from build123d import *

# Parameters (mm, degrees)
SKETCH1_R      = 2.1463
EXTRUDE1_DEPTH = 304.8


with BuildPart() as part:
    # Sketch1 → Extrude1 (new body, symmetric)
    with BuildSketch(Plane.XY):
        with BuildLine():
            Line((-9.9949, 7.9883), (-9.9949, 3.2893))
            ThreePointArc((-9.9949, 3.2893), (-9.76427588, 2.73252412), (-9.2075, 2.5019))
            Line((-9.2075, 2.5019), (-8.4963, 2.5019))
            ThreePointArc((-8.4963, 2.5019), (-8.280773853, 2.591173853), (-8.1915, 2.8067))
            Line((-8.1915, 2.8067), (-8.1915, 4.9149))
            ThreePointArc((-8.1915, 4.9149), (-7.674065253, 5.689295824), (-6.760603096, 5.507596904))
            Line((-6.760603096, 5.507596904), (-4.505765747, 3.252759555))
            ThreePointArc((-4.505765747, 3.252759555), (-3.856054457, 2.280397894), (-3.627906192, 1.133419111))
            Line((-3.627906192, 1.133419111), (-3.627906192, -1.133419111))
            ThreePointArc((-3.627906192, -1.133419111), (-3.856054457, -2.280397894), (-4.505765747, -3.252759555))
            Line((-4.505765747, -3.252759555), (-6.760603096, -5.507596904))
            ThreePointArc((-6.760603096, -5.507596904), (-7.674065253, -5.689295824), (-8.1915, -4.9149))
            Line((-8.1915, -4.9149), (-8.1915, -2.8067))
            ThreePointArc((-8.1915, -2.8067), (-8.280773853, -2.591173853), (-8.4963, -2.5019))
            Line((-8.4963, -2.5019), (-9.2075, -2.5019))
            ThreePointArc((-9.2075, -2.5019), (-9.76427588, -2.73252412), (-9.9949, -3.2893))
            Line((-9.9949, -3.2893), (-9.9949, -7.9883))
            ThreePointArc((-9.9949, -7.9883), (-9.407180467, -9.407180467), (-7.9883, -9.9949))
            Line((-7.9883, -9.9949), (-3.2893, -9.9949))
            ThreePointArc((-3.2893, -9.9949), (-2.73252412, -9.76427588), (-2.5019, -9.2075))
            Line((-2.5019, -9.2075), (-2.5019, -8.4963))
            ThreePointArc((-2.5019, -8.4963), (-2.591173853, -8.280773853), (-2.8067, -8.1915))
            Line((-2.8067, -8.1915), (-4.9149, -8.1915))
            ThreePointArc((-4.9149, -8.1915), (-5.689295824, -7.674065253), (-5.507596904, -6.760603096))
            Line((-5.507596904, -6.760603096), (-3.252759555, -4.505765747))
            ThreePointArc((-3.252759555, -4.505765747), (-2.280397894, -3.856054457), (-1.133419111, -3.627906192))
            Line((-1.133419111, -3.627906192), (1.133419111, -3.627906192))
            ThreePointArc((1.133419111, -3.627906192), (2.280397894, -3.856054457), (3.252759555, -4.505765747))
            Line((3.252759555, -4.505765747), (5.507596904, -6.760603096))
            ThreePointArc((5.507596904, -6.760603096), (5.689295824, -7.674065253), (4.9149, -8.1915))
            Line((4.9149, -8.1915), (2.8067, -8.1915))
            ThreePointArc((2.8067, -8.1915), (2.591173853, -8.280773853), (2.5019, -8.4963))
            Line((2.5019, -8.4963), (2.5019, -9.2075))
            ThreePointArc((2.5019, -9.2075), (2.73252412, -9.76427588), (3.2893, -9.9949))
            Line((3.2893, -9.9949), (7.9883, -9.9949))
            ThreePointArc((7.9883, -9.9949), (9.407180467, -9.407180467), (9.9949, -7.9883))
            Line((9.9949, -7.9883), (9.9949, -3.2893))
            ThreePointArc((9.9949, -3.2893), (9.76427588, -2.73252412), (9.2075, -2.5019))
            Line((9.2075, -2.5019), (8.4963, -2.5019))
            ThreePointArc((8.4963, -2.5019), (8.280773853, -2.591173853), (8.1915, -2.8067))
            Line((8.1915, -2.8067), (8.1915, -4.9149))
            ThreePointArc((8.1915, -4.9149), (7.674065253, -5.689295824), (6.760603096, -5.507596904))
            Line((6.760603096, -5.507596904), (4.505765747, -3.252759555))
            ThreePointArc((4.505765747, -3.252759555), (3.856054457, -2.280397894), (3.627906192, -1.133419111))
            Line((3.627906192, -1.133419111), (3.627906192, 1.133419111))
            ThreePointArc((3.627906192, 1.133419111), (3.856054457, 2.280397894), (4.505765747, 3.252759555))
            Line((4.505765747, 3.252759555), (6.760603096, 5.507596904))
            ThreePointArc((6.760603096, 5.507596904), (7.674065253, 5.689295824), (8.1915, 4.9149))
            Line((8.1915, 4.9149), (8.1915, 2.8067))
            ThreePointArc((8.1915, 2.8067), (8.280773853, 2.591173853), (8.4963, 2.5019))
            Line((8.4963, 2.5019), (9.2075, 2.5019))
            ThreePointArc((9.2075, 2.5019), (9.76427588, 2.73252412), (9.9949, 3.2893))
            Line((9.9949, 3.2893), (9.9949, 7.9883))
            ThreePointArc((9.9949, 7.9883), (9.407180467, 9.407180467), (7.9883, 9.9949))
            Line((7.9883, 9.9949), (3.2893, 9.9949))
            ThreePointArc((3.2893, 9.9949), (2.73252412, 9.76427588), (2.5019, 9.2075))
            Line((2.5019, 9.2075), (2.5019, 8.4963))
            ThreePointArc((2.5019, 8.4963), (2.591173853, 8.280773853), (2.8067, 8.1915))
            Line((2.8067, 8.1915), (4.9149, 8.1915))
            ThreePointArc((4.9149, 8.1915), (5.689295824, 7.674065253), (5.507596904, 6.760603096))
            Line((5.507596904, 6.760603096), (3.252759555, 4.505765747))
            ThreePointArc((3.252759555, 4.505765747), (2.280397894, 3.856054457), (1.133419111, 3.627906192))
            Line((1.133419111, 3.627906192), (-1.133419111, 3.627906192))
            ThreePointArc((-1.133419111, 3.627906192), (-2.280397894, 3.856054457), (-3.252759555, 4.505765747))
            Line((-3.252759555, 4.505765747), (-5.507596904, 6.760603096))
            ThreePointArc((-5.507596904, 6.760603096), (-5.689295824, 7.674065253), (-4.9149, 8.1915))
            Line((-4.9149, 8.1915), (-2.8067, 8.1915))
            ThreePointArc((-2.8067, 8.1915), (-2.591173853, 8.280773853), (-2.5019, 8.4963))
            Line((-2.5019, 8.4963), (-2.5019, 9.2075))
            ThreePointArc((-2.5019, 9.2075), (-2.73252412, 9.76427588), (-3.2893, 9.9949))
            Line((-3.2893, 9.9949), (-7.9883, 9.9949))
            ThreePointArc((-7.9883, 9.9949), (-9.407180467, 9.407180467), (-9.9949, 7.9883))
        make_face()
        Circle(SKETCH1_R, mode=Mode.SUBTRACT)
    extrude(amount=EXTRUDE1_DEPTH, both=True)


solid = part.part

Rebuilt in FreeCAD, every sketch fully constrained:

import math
import FreeCAD as App
import Part
import Sketcher
from FreeCAD import Vector
Q = App.Units.Quantity

doc = App.newDocument("Part")
body = doc.addObject("PartDesign::Body", "Body")

# Sketch on XY plane
sketch1 = body.newObject("Sketcher::SketchObject", "Sketch")
sketch1.AttachmentSupport = (doc.getObject("XY_Plane"), [""])
sketch1.MapMode = "FlatFace"
sketch1.addGeometry([
    Part.LineSegment(Vector(-9.9949, 7.9883, 0), Vector(-9.9949, 3.2893, 0)),  # 0
    Part.ArcOfCircle(Part.Circle(Vector(-9.2075, 3.2893, 0), Vector(0, 0, 1), 0.7874), math.radians(180), math.radians(270)),  # 1
    Part.LineSegment(Vector(-9.2075, 2.5019, 0), Vector(-8.4963, 2.5019, 0)),  # 2
    Part.ArcOfCircle(Part.Circle(Vector(-8.4963, 2.8067, 0), Vector(0, 0, 1), 0.3048), math.radians(-90), math.radians(0)),  # 3
    Part.LineSegment(Vector(-8.1915, 2.8067, 0), Vector(-8.1915, 4.9149, 0)),  # 4
    Part.ArcOfCircle(Part.Circle(Vector(-7.3533, 4.9149, 0), Vector(0, 0, 1), 0.8382), math.radians(45), math.radians(180)),  # 5
    Part.LineSegment(Vector(-6.760603, 5.507597, 0), Vector(-4.505766, 3.25276, 0)),  # 6
    Part.ArcOfCircle(Part.Circle(Vector(-6.625106, 1.133419, 0), Vector(0, 0, 1), 2.9972), math.radians(0), math.radians(45)),  # 7
    Part.LineSegment(Vector(-3.627906, 1.133419, 0), Vector(-3.627906, -1.133419, 0)),  # 8
    Part.ArcOfCircle(Part.Circle(Vector(-6.625106, -1.133419, 0), Vector(0, 0, 1), 2.9972), math.radians(-45), math.radians(0)),  # 9
    Part.LineSegment(Vector(-4.505766, -3.25276, 0), Vector(-6.760603, -5.507597, 0)),  # 10
    Part.ArcOfCircle(Part.Circle(Vector(-7.3533, -4.9149, 0), Vector(0, 0, 1), 0.8382), math.radians(180), math.radians(315)),  # 11
    Part.LineSegment(Vector(-8.1915, -4.9149, 0), Vector(-8.1915, -2.8067, 0)),  # 12
    Part.ArcOfCircle(Part.Circle(Vector(-8.4963, -2.8067, 0), Vector(0, 0, 1), 0.3048), math.radians(0), math.radians(90)),  # 13
    Part.LineSegment(Vector(-8.4963, -2.5019, 0), Vector(-9.2075, -2.5019, 0)),  # 14
    Part.ArcOfCircle(Part.Circle(Vector(-9.2075, -3.2893, 0), Vector(0, 0, 1), 0.7874), math.radians(90), math.radians(180)),  # 15
    Part.LineSegment(Vector(-9.9949, -3.2893, 0), Vector(-9.9949, -7.9883, 0)),  # 16
    Part.ArcOfCircle(Part.Circle(Vector(-7.9883, -7.9883, 0), Vector(0, 0, 1), 2.0066), math.radians(180), math.radians(270)),  # 17
    Part.LineSegment(Vector(-7.9883, -9.9949, 0), Vector(-3.2893, -9.9949, 0)),  # 18
    Part.ArcOfCircle(Part.Circle(Vector(-3.2893, -9.2075, 0), Vector(0, 0, 1), 0.7874), math.radians(-90), math.radians(0)),  # 19
    Part.LineSegment(Vector(-2.5019, -9.2075, 0), Vector(-2.5019, -8.4963, 0)),  # 20
    Part.ArcOfCircle(Part.Circle(Vector(-2.8067, -8.4963, 0), Vector(0, 0, 1), 0.3048), math.radians(0), math.radians(90)),  # 21
    Part.LineSegment(Vector(-2.8067, -8.1915, 0), Vector(-4.9149, -8.1915, 0)),  # 22
    Part.ArcOfCircle(Part.Circle(Vector(-4.9149, -7.3533, 0), Vector(0, 0, 1), 0.8382), math.radians(135), math.radians(270)),  # 23
    Part.LineSegment(Vector(-5.507597, -6.760603, 0), Vector(-3.25276, -4.505766, 0)),  # 24
    Part.ArcOfCircle(Part.Circle(Vector(-1.133419, -6.625106, 0), Vector(0, 0, 1), 2.9972), math.radians(90), math.radians(135)),  # 25
    Part.LineSegment(Vector(-1.133419, -3.627906, 0), Vector(1.133419, -3.627906, 0)),  # 26
    Part.ArcOfCircle(Part.Circle(Vector(1.133419, -6.625106, 0), Vector(0, 0, 1), 2.9972), math.radians(45), math.radians(90)),  # 27
    Part.LineSegment(Vector(3.25276, -4.505766, 0), Vector(5.507597, -6.760603, 0)),  # 28
    Part.ArcOfCircle(Part.Circle(Vector(4.9149, -7.3533, 0), Vector(0, 0, 1), 0.8382), math.radians(-90), math.radians(45)),  # 29
    Part.LineSegment(Vector(4.9149, -8.1915, 0), Vector(2.8067, -8.1915, 0)),  # 30
    Part.ArcOfCircle(Part.Circle(Vector(2.8067, -8.4963, 0), Vector(0, 0, 1), 0.3048), math.radians(90), math.radians(180)),  # 31
    Part.LineSegment(Vector(2.5019, -8.4963, 0), Vector(2.5019, -9.2075, 0)),  # 32
    Part.ArcOfCircle(Part.Circle(Vector(3.2893, -9.2075, 0), Vector(0, 0, 1), 0.7874), math.radians(180), math.radians(270)),  # 33
    Part.LineSegment(Vector(3.2893, -9.9949, 0), Vector(7.9883, -9.9949, 0)),  # 34
    Part.ArcOfCircle(Part.Circle(Vector(7.9883, -7.9883, 0), Vector(0, 0, 1), 2.0066), math.radians(-90), math.radians(0)),  # 35
    Part.LineSegment(Vector(9.9949, -7.9883, 0), Vector(9.9949, -3.2893, 0)),  # 36
    Part.ArcOfCircle(Part.Circle(Vector(9.2075, -3.2893, 0), Vector(0, 0, 1), 0.7874), math.radians(0), math.radians(90)),  # 37
    Part.LineSegment(Vector(9.2075, -2.5019, 0), Vector(8.4963, -2.5019, 0)),  # 38
    Part.ArcOfCircle(Part.Circle(Vector(8.4963, -2.8067, 0), Vector(0, 0, 1), 0.3048), math.radians(90), math.radians(180)),  # 39
    Part.LineSegment(Vector(8.1915, -2.8067, 0), Vector(8.1915, -4.9149, 0)),  # 40
    Part.ArcOfCircle(Part.Circle(Vector(7.3533, -4.9149, 0), Vector(0, 0, 1), 0.8382), math.radians(-135), math.radians(0)),  # 41
    Part.LineSegment(Vector(6.760603, -5.507597, 0), Vector(4.505766, -3.25276, 0)),  # 42
    Part.ArcOfCircle(Part.Circle(Vector(6.625106, -1.133419, 0), Vector(0, 0, 1), 2.9972), math.radians(180), math.radians(225)),  # 43
    Part.LineSegment(Vector(3.627906, -1.133419, 0), Vector(3.627906, 1.133419, 0)),  # 44
    Part.ArcOfCircle(Part.Circle(Vector(6.625106, 1.133419, 0), Vector(0, 0, 1), 2.9972), math.radians(135), math.radians(180)),  # 45
    Part.LineSegment(Vector(4.505766, 3.25276, 0), Vector(6.760603, 5.507597, 0)),  # 46
    Part.ArcOfCircle(Part.Circle(Vector(7.3533, 4.9149, 0), Vector(0, 0, 1), 0.8382), math.radians(0), math.radians(135)),  # 47
    Part.LineSegment(Vector(8.1915, 4.9149, 0), Vector(8.1915, 2.8067, 0)),  # 48
    Part.ArcOfCircle(Part.Circle(Vector(8.4963, 2.8067, 0), Vector(0, 0, 1), 0.3048), math.radians(180), math.radians(270)),  # 49
    Part.LineSegment(Vector(8.4963, 2.5019, 0), Vector(9.2075, 2.5019, 0)),  # 50
    Part.ArcOfCircle(Part.Circle(Vector(9.2075, 3.2893, 0), Vector(0, 0, 1), 0.7874), math.radians(-90), math.radians(0)),  # 51
    Part.LineSegment(Vector(9.9949, 3.2893, 0), Vector(9.9949, 7.9883, 0)),  # 52
    Part.ArcOfCircle(Part.Circle(Vector(7.9883, 7.9883, 0), Vector(0, 0, 1), 2.0066), math.radians(0), math.radians(90)),  # 53
    Part.LineSegment(Vector(7.9883, 9.9949, 0), Vector(3.2893, 9.9949, 0)),  # 54
    Part.ArcOfCircle(Part.Circle(Vector(3.2893, 9.2075, 0), Vector(0, 0, 1), 0.7874), math.radians(90), math.radians(180)),  # 55
    Part.LineSegment(Vector(2.5019, 9.2075, 0), Vector(2.5019, 8.4963, 0)),  # 56
    Part.ArcOfCircle(Part.Circle(Vector(2.8067, 8.4963, 0), Vector(0, 0, 1), 0.3048), math.radians(180), math.radians(270)),  # 57
    Part.LineSegment(Vector(2.8067, 8.1915, 0), Vector(4.9149, 8.1915, 0)),  # 58
    Part.ArcOfCircle(Part.Circle(Vector(4.9149, 7.3533, 0), Vector(0, 0, 1), 0.8382), math.radians(-45), math.radians(90)),  # 59
    Part.LineSegment(Vector(5.507597, 6.760603, 0), Vector(3.25276, 4.505766, 0)),  # 60
    Part.ArcOfCircle(Part.Circle(Vector(1.133419, 6.625106, 0), Vector(0, 0, 1), 2.9972), math.radians(-90), math.radians(-45)),  # 61
    Part.LineSegment(Vector(1.133419, 3.627906, 0), Vector(-1.133419, 3.627906, 0)),  # 62
    Part.ArcOfCircle(Part.Circle(Vector(-1.133419, 6.625106, 0), Vector(0, 0, 1), 2.9972), math.radians(-135), math.radians(-90)),  # 63
    Part.LineSegment(Vector(-3.25276, 4.505766, 0), Vector(-5.507597, 6.760603, 0)),  # 64
    Part.ArcOfCircle(Part.Circle(Vector(-4.9149, 7.3533, 0), Vector(0, 0, 1), 0.8382), math.radians(90), math.radians(225)),  # 65
    Part.LineSegment(Vector(-4.9149, 8.1915, 0), Vector(-2.8067, 8.1915, 0)),  # 66
    Part.ArcOfCircle(Part.Circle(Vector(-2.8067, 8.4963, 0), Vector(0, 0, 1), 0.3048), math.radians(-90), math.radians(0)),  # 67
    Part.LineSegment(Vector(-2.5019, 8.4963, 0), Vector(-2.5019, 9.2075, 0)),  # 68
    Part.ArcOfCircle(Part.Circle(Vector(-3.2893, 9.2075, 0), Vector(0, 0, 1), 0.7874), math.radians(0), math.radians(90)),  # 69
    Part.LineSegment(Vector(-3.2893, 9.9949, 0), Vector(-7.9883, 9.9949, 0)),  # 70
    Part.ArcOfCircle(Part.Circle(Vector(-7.9883, 7.9883, 0), Vector(0, 0, 1), 2.0066), math.radians(90), math.radians(180)),  # 71
    Part.Circle(Vector(0, 0, 0), Vector(0, 0, 1), 2.1463),  # 72
], False)
sketch1.addConstraint([
    Sketcher.Constraint("Tangent", 0, 2, 1, 1),
    Sketcher.Constraint("Tangent", 1, 2, 2, 1),
    Sketcher.Constraint("Tangent", 2, 2, 3, 1),
    Sketcher.Constraint("Tangent", 3, 2, 4, 1),
    Sketcher.Constraint("Tangent", 4, 2, 5, 2),
    Sketcher.Constraint("Tangent", 5, 1, 6, 1),
    Sketcher.Constraint("Tangent", 6, 2, 7, 2),
    Sketcher.Constraint("Tangent", 7, 1, 8, 1),
    Sketcher.Constraint("Tangent", 8, 2, 9, 2),
    Sketcher.Constraint("Tangent", 9, 1, 10, 1),
    Sketcher.Constraint("Tangent", 10, 2, 11, 2),
    Sketcher.Constraint("Tangent", 11, 1, 12, 1),
    Sketcher.Constraint("Tangent", 12, 2, 13, 1),
    Sketcher.Constraint("Tangent", 13, 2, 14, 1),
    Sketcher.Constraint("Tangent", 14, 2, 15, 1),
    Sketcher.Constraint("Tangent", 15, 2, 16, 1),
    Sketcher.Constraint("Tangent", 16, 2, 17, 1),
    Sketcher.Constraint("Tangent", 17, 2, 18, 1),
    Sketcher.Constraint("Tangent", 18, 2, 19, 1),
    Sketcher.Constraint("Tangent", 19, 2, 20, 1),
    Sketcher.Constraint("Tangent", 20, 2, 21, 1),
    Sketcher.Constraint("Tangent", 21, 2, 22, 1),
    Sketcher.Constraint("Tangent", 22, 2, 23, 2),
    Sketcher.Constraint("Tangent", 23, 1, 24, 1),
    Sketcher.Constraint("Tangent", 24, 2, 25, 2),
    Sketcher.Constraint("Tangent", 25, 1, 26, 1),
    Sketcher.Constraint("Tangent", 26, 2, 27, 2),
    Sketcher.Constraint("Tangent", 27, 1, 28, 1),
    Sketcher.Constraint("Tangent", 28, 2, 29, 2),
    Sketcher.Constraint("Tangent", 29, 1, 30, 1),
    Sketcher.Constraint("Tangent", 30, 2, 31, 1),
    Sketcher.Constraint("Tangent", 31, 2, 32, 1),
    Sketcher.Constraint("Tangent", 32, 2, 33, 1),
    Sketcher.Constraint("Tangent", 33, 2, 34, 1),
    Sketcher.Constraint("Tangent", 34, 2, 35, 1),
    Sketcher.Constraint("Tangent", 35, 2, 36, 1),
    Sketcher.Constraint("Tangent", 36, 2, 37, 1),
    Sketcher.Constraint("Tangent", 37, 2, 38, 1),
    Sketcher.Constraint("Tangent", 38, 2, 39, 1),
    Sketcher.Constraint("Tangent", 39, 2, 40, 1),
    Sketcher.Constraint("Tangent", 40, 2, 41, 2),
    Sketcher.Constraint("Tangent", 41, 1, 42, 1),
    Sketcher.Constraint("Tangent", 42, 2, 43, 2),
    Sketcher.Constraint("Tangent", 43, 1, 44, 1),
    Sketcher.Constraint("Tangent", 44, 2, 45, 2),
    Sketcher.Constraint("Tangent", 45, 1, 46, 1),
    Sketcher.Constraint("Tangent", 46, 2, 47, 2),
    Sketcher.Constraint("Tangent", 47, 1, 48, 1),
    Sketcher.Constraint("Tangent", 48, 2, 49, 1),
    Sketcher.Constraint("Tangent", 49, 2, 50, 1),
    Sketcher.Constraint("Tangent", 50, 2, 51, 1),
    Sketcher.Constraint("Tangent", 51, 2, 52, 1),
    Sketcher.Constraint("Tangent", 52, 2, 53, 1),
    Sketcher.Constraint("Tangent", 53, 2, 54, 1),
    Sketcher.Constraint("Tangent", 54, 2, 55, 1),
    Sketcher.Constraint("Tangent", 55, 2, 56, 1),
    Sketcher.Constraint("Tangent", 56, 2, 57, 1),
    Sketcher.Constraint("Tangent", 57, 2, 58, 1),
    Sketcher.Constraint("Tangent", 58, 2, 59, 2),
    Sketcher.Constraint("Tangent", 59, 1, 60, 1),
    Sketcher.Constraint("Tangent", 60, 2, 61, 2),
    Sketcher.Constraint("Tangent", 61, 1, 62, 1),
    Sketcher.Constraint("Tangent", 62, 2, 63, 2),
    Sketcher.Constraint("Tangent", 63, 1, 64, 1),
    Sketcher.Constraint("Tangent", 64, 2, 65, 2),
    Sketcher.Constraint("Tangent", 65, 1, 66, 1),
    Sketcher.Constraint("Tangent", 66, 2, 67, 1),
    Sketcher.Constraint("Tangent", 67, 2, 68, 1),
    Sketcher.Constraint("Tangent", 68, 2, 69, 1),
    Sketcher.Constraint("Tangent", 69, 2, 70, 1),
    Sketcher.Constraint("Tangent", 70, 2, 71, 1),
    Sketcher.Constraint("Tangent", 71, 2, 0, 1),
    Sketcher.Constraint("Vertical", 0),
    Sketcher.Constraint("Horizontal", 2),
    Sketcher.Constraint("Vertical", 4),
    Sketcher.Constraint("Vertical", 8),
    Sketcher.Constraint("Vertical", 12),
    Sketcher.Constraint("Horizontal", 14),
    Sketcher.Constraint("Vertical", 16),
    Sketcher.Constraint("Horizontal", 18),
    Sketcher.Constraint("Vertical", 20),
    Sketcher.Constraint("Horizontal", 22),
    Sketcher.Constraint("Horizontal", 26),
    Sketcher.Constraint("Horizontal", 30),
    Sketcher.Constraint("Vertical", 32),
    Sketcher.Constraint("Horizontal", 34),
    Sketcher.Constraint("Vertical", 36),
    Sketcher.Constraint("Horizontal", 38),
    Sketcher.Constraint("Vertical", 40),
    Sketcher.Constraint("Vertical", 44),
    Sketcher.Constraint("Vertical", 48),
    Sketcher.Constraint("Horizontal", 50),
    Sketcher.Constraint("Vertical", 52),
    Sketcher.Constraint("Horizontal", 54),
    Sketcher.Constraint("Vertical", 56),
    Sketcher.Constraint("Horizontal", 58),
    Sketcher.Constraint("Horizontal", 62),
    Sketcher.Constraint("Horizontal", 66),
    Sketcher.Constraint("Vertical", 68),
    Sketcher.Constraint("Horizontal", 70),
    Sketcher.Constraint("Coincident", 72, 3, -1, 1),
    Sketcher.Constraint("Equal", 7, 9),
    Sketcher.Constraint("Equal", 5, 11),
    Sketcher.Constraint("Equal", 3, 13),
    Sketcher.Constraint("Equal", 1, 15),
    Sketcher.Constraint("Equal", 15, 19),
    Sketcher.Constraint("Equal", 13, 21),
    Sketcher.Constraint("Equal", 11, 23),
    Sketcher.Constraint("Equal", 9, 25),
    Sketcher.Constraint("Equal", 25, 27),
    Sketcher.Constraint("Equal", 23, 29),
    Sketcher.Constraint("Equal", 21, 31),
    Sketcher.Constraint("Equal", 19, 33),
    Sketcher.Constraint("Equal", 17, 35),
    Sketcher.Constraint("Equal", 33, 37),
    Sketcher.Constraint("Equal", 31, 39),
    Sketcher.Constraint("Equal", 29, 41),
    Sketcher.Constraint("Equal", 27, 43),
    Sketcher.Constraint("Equal", 43, 45),
    Sketcher.Constraint("Equal", 41, 47),
    Sketcher.Constraint("Equal", 39, 49),
    Sketcher.Constraint("Equal", 37, 51),
    Sketcher.Constraint("Equal", 35, 53),
    Sketcher.Constraint("Equal", 51, 55),
    Sketcher.Constraint("Equal", 49, 57),
    Sketcher.Constraint("Equal", 47, 59),
    Sketcher.Constraint("Equal", 45, 61),
    Sketcher.Constraint("Equal", 61, 63),
    Sketcher.Constraint("Equal", 59, 65),
    Sketcher.Constraint("Equal", 57, 67),
    Sketcher.Constraint("Equal", 55, 69),
    Sketcher.Constraint("Equal", 53, 71),
    Sketcher.Constraint("Symmetric", 1, 3, 37, 3, -1, 1),
    Sketcher.Constraint("Symmetric", 5, 3, 41, 3, -1, 1),
    Sketcher.Constraint("Symmetric", 7, 3, 43, 3, -1, 1),
    Sketcher.Constraint("Symmetric", 11, 3, 47, 3, -1, 1),
    Sketcher.Constraint("Symmetric", 15, 3, 51, 3, -1, 1),
    Sketcher.Constraint("Symmetric", 19, 3, 55, 3, -1, 1),
    Sketcher.Constraint("Symmetric", 23, 3, 59, 3, -1, 1),
    Sketcher.Constraint("Symmetric", 25, 3, 61, 3, -1, 1),
    Sketcher.Constraint("Symmetric", 29, 3, 65, 3, -1, 1),
    Sketcher.Constraint("Symmetric", 33, 3, 69, 3, -1, 1),
    Sketcher.Constraint("Symmetric", 23, 3, 29, 3, -2),
    Sketcher.Constraint("Symmetric", 19, 3, 33, 3, -2),
    Sketcher.Constraint("Symmetric", 15, 3, 37, 3, -2),
    Sketcher.Constraint("Symmetric", 11, 3, 41, 3, -2),
    Sketcher.Constraint("Perpendicular", 6, 10),
    Sketcher.Constraint("Parallel", 10, 24),
    Sketcher.Constraint("Perpendicular", 24, 28),
    Sketcher.Constraint("Perpendicular", 42, 46),
    Sketcher.Constraint("Perpendicular", 60, 64),
    Sketcher.Constraint("Horizontal", 9, 3, 43, 3),
    Sketcher.Constraint("Equal", 70, 0),
    Sketcher.Constraint("Equal", 66, 4),
    Sketcher.Constraint("Equal", 62, 8),
    Sketcher.Constraint("Equal", 50, 20),
    Sketcher.Constraint("Equal", 10, 24),
    Sketcher.Constraint("Diameter", 72, Q("0.169 in")),
    Sketcher.Constraint("Radius", 1, Q("0.031 in")),
    Sketcher.Constraint("Radius", 3, Q("0.012 in")),
    Sketcher.Constraint("Radius", 5, Q("0.033 in")),
    Sketcher.Constraint("Radius", 7, Q("0.118 in")),
    Sketcher.Constraint("Radius", 17, Q("0.079 in")),
    Sketcher.Constraint("DistanceX", 2, 1, 2, 2, Q("0.028 in")),
    Sketcher.Constraint("DistanceX", 18, 1, 18, 2, Q("0.185 in")),
    Sketcher.Constraint("DistanceX", 22, 2, 22, 1, Q("0.083 in")),
    Sketcher.Constraint("DistanceX", 1, 3, -1, 1, Q("0.3625 in")),
    Sketcher.Constraint("DistanceX", 26, 1, 26, 2, 2.266838),
])
pad1 = body.newObject("PartDesign::Pad", "Pad")
pad1.Profile = sketch1
pad1.Length = Q("24 in")
pad1.Midplane = True

doc.recompute()
